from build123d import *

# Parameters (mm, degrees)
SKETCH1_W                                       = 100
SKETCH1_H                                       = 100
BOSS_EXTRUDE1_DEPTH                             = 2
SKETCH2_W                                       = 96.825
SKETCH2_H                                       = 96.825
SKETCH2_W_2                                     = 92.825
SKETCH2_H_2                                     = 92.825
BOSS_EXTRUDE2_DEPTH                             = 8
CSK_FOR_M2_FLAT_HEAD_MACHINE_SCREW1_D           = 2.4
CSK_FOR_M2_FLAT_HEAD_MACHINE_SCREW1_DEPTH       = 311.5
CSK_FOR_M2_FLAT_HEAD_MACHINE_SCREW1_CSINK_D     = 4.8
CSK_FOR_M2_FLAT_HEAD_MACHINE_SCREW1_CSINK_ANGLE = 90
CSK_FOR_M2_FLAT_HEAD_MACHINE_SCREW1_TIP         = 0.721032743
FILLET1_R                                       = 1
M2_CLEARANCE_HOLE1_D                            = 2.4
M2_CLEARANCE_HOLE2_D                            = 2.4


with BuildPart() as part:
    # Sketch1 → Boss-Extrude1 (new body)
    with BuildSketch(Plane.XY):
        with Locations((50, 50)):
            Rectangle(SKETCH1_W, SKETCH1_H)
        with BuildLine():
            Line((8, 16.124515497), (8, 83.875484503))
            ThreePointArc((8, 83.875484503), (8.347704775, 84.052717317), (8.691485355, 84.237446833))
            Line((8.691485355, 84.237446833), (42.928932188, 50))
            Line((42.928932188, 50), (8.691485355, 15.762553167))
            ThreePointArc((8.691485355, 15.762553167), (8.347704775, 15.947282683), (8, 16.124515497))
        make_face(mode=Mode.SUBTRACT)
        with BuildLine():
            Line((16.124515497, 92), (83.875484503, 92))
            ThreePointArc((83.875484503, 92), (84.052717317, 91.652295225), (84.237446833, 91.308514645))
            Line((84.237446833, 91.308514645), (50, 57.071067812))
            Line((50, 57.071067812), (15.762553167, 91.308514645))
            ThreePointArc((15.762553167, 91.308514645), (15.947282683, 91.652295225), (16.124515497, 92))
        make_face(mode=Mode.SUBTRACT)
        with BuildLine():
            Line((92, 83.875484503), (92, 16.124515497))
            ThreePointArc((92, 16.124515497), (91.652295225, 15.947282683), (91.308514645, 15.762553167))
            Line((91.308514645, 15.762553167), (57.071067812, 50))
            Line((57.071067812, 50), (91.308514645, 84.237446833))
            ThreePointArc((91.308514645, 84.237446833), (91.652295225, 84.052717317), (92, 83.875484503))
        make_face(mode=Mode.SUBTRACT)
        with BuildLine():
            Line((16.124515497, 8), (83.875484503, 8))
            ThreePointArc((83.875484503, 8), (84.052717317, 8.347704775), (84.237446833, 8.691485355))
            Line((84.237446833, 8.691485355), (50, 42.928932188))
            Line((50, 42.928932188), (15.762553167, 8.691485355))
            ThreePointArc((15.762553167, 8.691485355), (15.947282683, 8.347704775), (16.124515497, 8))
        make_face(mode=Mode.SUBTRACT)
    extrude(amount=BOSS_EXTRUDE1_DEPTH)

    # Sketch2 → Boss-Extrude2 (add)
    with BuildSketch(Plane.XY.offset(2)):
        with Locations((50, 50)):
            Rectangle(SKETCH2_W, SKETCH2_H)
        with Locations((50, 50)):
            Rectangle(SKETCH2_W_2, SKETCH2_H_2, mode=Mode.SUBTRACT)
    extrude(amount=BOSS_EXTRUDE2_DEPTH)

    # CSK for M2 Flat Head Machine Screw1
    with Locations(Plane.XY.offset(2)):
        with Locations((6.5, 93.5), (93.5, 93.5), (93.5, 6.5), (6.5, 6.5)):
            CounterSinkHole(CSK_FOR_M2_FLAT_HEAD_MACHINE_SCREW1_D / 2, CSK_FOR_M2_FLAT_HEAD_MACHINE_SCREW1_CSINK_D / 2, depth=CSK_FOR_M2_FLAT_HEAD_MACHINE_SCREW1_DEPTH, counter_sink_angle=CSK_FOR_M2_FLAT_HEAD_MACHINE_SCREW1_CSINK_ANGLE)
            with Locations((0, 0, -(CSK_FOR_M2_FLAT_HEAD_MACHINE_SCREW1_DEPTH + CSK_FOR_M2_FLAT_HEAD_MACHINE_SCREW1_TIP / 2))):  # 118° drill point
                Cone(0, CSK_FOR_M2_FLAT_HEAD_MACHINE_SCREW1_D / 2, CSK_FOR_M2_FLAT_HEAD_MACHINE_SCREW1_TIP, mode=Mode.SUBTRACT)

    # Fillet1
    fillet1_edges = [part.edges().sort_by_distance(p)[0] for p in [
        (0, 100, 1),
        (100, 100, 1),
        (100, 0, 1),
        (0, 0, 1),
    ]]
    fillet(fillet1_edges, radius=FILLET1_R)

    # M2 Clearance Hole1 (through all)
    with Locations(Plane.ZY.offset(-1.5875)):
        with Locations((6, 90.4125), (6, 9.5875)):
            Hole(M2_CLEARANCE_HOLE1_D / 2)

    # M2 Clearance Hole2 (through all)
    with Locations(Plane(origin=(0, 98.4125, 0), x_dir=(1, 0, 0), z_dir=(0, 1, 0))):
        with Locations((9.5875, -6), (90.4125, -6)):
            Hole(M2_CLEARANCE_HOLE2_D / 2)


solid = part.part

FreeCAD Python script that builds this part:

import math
import FreeCAD as App
import Part
import Sketcher
from FreeCAD import Vector


def edges_at(feature, points):
    """Names of the edges that pass closest to the given points."""
    edges = feature.Shape.Edges
    near = lambda p: min(range(len(edges)), key=lambda i: edges[i].distToShape(Part.Vertex(*p))[0])
    return sorted({f"Edge{near(p) + 1}" for p in points})


def add_polygon(sketch, points):
    """Adds a closed chain of lines whose ends are joined by coincident constraints."""
    first, n = sketch.GeometryCount, len(points)
    for a, b in zip(points, points[1:] + points[:1]):
        sketch.addGeometry(Part.LineSegment(App.Vector(*a, 0), App.Vector(*b, 0)), False)
    for i in range(n):
        sketch.addConstraint(Sketcher.Constraint("Coincident", first + i, 2, first + (i + 1) % n, 1))

doc = App.newDocument("Part")
params = doc.addObject("Spreadsheet::Sheet", "Params")
for row, (alias, value) in enumerate([
    ("sketch1_width", "100 mm"),
    ("pad1_length", "2 mm"),
    ("pad2_length", "8 mm"),
    ("sketch3_diameter", "2.4 mm"),
    ("hole_diameter", "2.4 mm"),
    ("hole_depth", "311.5 mm"),
    ("hole_csink_diameter", "4.8 mm"),
    ("fillet_radius", "1 mm"),
    ("sketch4_diameter", "2.4 mm"),
    ("hole2_diameter", "2.4 mm"),
    ("sketch5_diameter", "2.4 mm"),
    ("hole3_diameter", "2.4 mm"),
], start=1):
    params.set(f"A{row}", alias)
    params.set(f"B{row}", "=" + value)
    params.setAlias(f"B{row}", alias)

body = doc.addObject("PartDesign::Body", "Body")

# Sketch on XY plane
sketch1 = body.newObject("Sketcher::SketchObject", "Sketch")
sketch1.AttachmentSupport = (doc.getObject("XY_Plane"), [""])
sketch1.MapMode = "FlatFace"
add_polygon(sketch1, [(0, 100), (0, 0), (100, 0), (100, 100)])  # lines 0-3
sketch1.addGeometry(Part.LineSegment(Vector(83.875485, 8, 0), Vector(16.124515, 8, 0)), False)  # 4
sketch1.addGeometry(Part.ArcOfCircle(Part.Circle(Vector(-0.000004, -0.000002, 0), Vector(0, 0, 1), 18.000004), math.radians(26.3878), math.radians(28.872379)), False)  # 5
sketch1.addGeometry(Part.LineSegment(Vector(15.762553, 8.691485, 0), Vector(50, 42.928932, 0)), False)  # 6
sketch1.addGeometry(Part.LineSegment(Vector(50, 42.928932, 0), Vector(84.237447, 8.691485, 0)), False)  # 7
sketch1.addGeometry(Part.ArcOfCircle(Part.Circle(Vector(100.000004, -0.000002, 0), Vector(0, 0, 1), 18.000004), math.radians(151.127621), math.radians(153.6122)), False)  # 8
sketch1.addGeometry(Part.ArcOfCircle(Part.Circle(Vector(-0.000002, -0.000004, 0), Vector(0, 0, 1), 18.000004), math.radians(61.127621), math.radians(63.6122)), False)  # 9
sketch1.addGeometry(Part.LineSegment(Vector(8, 16.124515, 0), Vector(8, 83.875485, 0)), False)  # 10
sketch1.addGeometry(Part.ArcOfCircle(Part.Circle(Vector(-0.000002, 100.000004, 0), Vector(0, 0, 1), 18.000004), math.radians(-63.6122), math.radians(-61.127621)), False)  # 11
sketch1.addGeometry(Part.LineSegment(Vector(8.691485, 84.237447, 0), Vector(42.928932, 50, 0)), False)  # 12
sketch1.addGeometry(Part.LineSegment(Vector(42.928932, 50, 0), Vector(8.691485, 15.762553, 0)), False)  # 13
sketch1.addGeometry(Part.ArcOfCircle(Part.Circle(Vector(100.000002, 100.000004, 0), Vector(0, 0, 1), 18.000004), math.radians(-118.872379), math.radians(-116.3878)), False)  # 14
sketch1.addGeometry(Part.LineSegment(Vector(92, 83.875485, 0), Vector(92, 16.124515, 0)), False)  # 15
sketch1.addGeometry(Part.ArcOfCircle(Part.Circle(Vector(100.000002, -0.000004, 0), Vector(0, 0, 1), 18.000004), math.radians(116.3878), math.radians(118.872379)), False)  # 16
sketch1.addGeometry(Part.LineSegment(Vector(91.308515, 15.762553, 0), Vector(57.071068, 50, 0)), False)  # 17
sketch1.addGeometry(Part.LineSegment(Vector(57.071068, 50, 0), Vector(91.308515, 84.237447, 0)), False)  # 18
sketch1.addGeometry(Part.ArcOfCircle(Part.Circle(Vector(-0.000004, 100.000002, 0), Vector(0, 0, 1), 18.000004), math.radians(-28.872379), math.radians(-26.3878)), False)  # 19
sketch1.addGeometry(Part.LineSegment(Vector(16.124515, 92, 0), Vector(83.875485, 92, 0)), False)  # 20
sketch1.addGeometry(Part.ArcOfCircle(Part.Circle(Vector(100.000004, 100.000002, 0), Vector(0, 0, 1), 18.000004), math.radians(-153.6122), math.radians(-151.127621)), False)  # 21
sketch1.addGeometry(Part.LineSegment(Vector(84.237447, 91.308515, 0), Vector(50, 57.071068, 0)), False)  # 22
sketch1.addGeometry(Part.LineSegment(Vector(50, 57.071068, 0), Vector(15.762553, 91.308515, 0)), False)  # 23
sketch1.addConstraint([
    Sketcher.Constraint("Coincident", 4, 2, 5, 1),
    Sketcher.Constraint("Coincident", 5, 2, 6, 1),
    Sketcher.Constraint("Coincident", 6, 2, 7, 1),
    Sketcher.Constraint("Coincident", 7, 2, 8, 1),
    Sketcher.Constraint("Coincident", 8, 2, 4, 1),
    Sketcher.Constraint("Coincident", 9, 2, 10, 1),
    Sketcher.Constraint("Coincident", 10, 2, 11, 1),
    Sketcher.Constraint("Coincident", 11, 2, 12, 1),
    Sketcher.Constraint("Coincident", 12, 2, 13, 1),
    Sketcher.Constraint("Coincident", 13, 2, 9, 1),
    Sketcher.Constraint("Coincident", 14, 2, 15, 1),
    Sketcher.Constraint("Coincident", 15, 2, 16, 1),
    Sketcher.Constraint("Coincident", 16, 2, 17, 1),
    Sketcher.Constraint("Coincident", 17, 2, 18, 1),
    Sketcher.Constraint("Coincident", 18, 2, 14, 1),
    Sketcher.Constraint("Coincident", 19, 2, 20, 1),
    Sketcher.Constraint("Coincident", 20, 2, 21, 1),
    Sketcher.Constraint("Coincident", 21, 2, 22, 1),
    Sketcher.Constraint("Coincident", 22, 2, 23, 1),
    Sketcher.Constraint("Coincident", 23, 2, 19, 1),
    Sketcher.Constraint("Vertical", 0),
    Sketcher.Constraint("Horizontal", 1),
    Sketcher.Constraint("Vertical", 2),
    Sketcher.Constraint("Horizontal", 3),
    Sketcher.Constraint("Horizontal", 4),
    Sketcher.Constraint("Vertical", 10),
    Sketcher.Constraint("Vertical", 15),
    Sketcher.Constraint("Horizontal", 20),
    Sketcher.Constraint("Coincident", 5, 3, -1, 1),
    Sketcher.Constraint("Coincident", 9, 3, -1, 1),
    Sketcher.Constraint("Coincident", 0, 2, -1, 1),
    Sketcher.Constraint("Coincident", 16, 3, 8, 3),
    Sketcher.Constraint("Coincident", 19, 3, 11, 3),
    Sketcher.Constraint("Coincident", 21, 3, 14, 3),
    Sketcher.Constraint("Coincident", 1, 2, 8, 3),
    Sketcher.Constraint("Coincident", 2, 2, 14, 3),
    Sketcher.Constraint("Coincident", 3, 2, 11, 3),
    Sketcher.Constraint("Equal", 5, 8),
    Sketcher.Constraint("Equal", 8, 9),
    Sketcher.Constraint("Equal", 9, 11),
    Sketcher.Constraint("Equal", 11, 14),
    Sketcher.Constraint("Equal", 14, 16),
    Sketcher.Constraint("Equal", 16, 19),
    Sketcher.Constraint("Equal", 19, 21),
    Sketcher.Constraint("Perpendicular", 6, 7),
    Sketcher.Constraint("Parallel", 7, 12),
    Sketcher.Constraint("Perpendicular", 12, 13),
    Sketcher.Constraint("Perpendicular", 13, 17),
    Sketcher.Constraint("Perpendicular", 17, 18),
    Sketcher.Constraint("Parallel", 18, 22),
    Sketcher.Constraint("Perpendicular", 22, 23),
    Sketcher.Constraint("Horizontal", 5, 2, 7, 2),
    Sketcher.Constraint("Horizontal", 10, 2, 14, 2),
    Sketcher.Constraint("Horizontal", 13, 2, 16, 2),
    Sketcher.Constraint("Horizontal", 12, 2, 17, 2),
    Sketcher.Constraint("Horizontal", 11, 2, 18, 2),
    Sketcher.Constraint("Horizontal", 21, 2, 23, 2),
    Sketcher.Constraint("Vertical", 11, 2, 13, 2),
    Sketcher.Constraint("Vertical", 4, 2, 19, 2),
    Sketcher.Constraint("Vertical", 7, 2, 21, 2),
    Sketcher.Constraint("Equal", 3, 0),
    Sketcher.Constraint("Equal", 20, 10),
    Sketcher.Constraint("Equal", 7, 12),
    Sketcher.Constraint("DistanceX", 1, 1, 1, 2, 100.0),
    Sketcher.Constraint("DistanceY", -1, 1, 4, 2, 8.0),
    Sketcher.Constraint("Radius", 5, 18.000004),
    Sketcher.Constraint("Distance", 6, 48.419062),
])
sketch1.setExpression("Constraints[67]", "Params.sketch1_width")
pad1 = body.newObject("PartDesign::Pad", "Pad")
pad1.Profile = sketch1
pad1.setExpression("Length", "Params.pad1_length")

# Sketch on XY plane
sketch2 = body.newObject("Sketcher::SketchObject", "Sketch001")
sketch2.AttachmentSupport = (doc.getObject("XY_Plane"), [""])
sketch2.MapMode = "FlatFace"
sketch2.AttachmentOffset = App.Placement(Vector(0, 0, 2), App.Rotation())
add_polygon(sketch2, [(1.5875, 98.4125), (1.5875, 1.5875), (98.4125, 1.5875), (98.4125, 98.4125)])  # lines 0-3
add_polygon(sketch2, [(96.4125, 3.5875), (3.5875, 3.5875), (3.5875, 96.4125), (96.4125, 96.4125)])  # lines 4-7
sketch2.addConstraint([
    Sketcher.Constraint("Vertical", 0),
    Sketcher.Constraint("Horizontal", 1),
    Sketcher.Constraint("Vertical", 2),
    Sketcher.Constraint("Horizontal", 3),
    Sketcher.Constraint("Horizontal", 4),
    Sketcher.Constraint("Vertical", 5),
    Sketcher.Constraint("Horizontal", 6),
    Sketcher.Constraint("Vertical", 7),
    Sketcher.Constraint("Equal", 3, 0),
    Sketcher.Constraint("Equal", 6, 5),
    Sketcher.Constraint("DistanceX", 0, 2, 4, 2, 2.0),
    Sketcher.Constraint("DistanceY", 0, 2, 4, 2, 2.0),
    Sketcher.Constraint("DistanceY", 5, 2, 3, 2, 2.0),
    Sketcher.Constraint("DistanceX", 1, 1, 1, 2, 96.825),
    Sketcher.Constraint("DistanceX", -1, 1, 0, 2, 1.5875),
    Sketcher.Constraint("DistanceY", -1, 1, 0, 2, 1.5875),
])
pad2 = body.newObject("PartDesign::Pad", "Pad001")
pad2.Profile = sketch2
pad2.setExpression("Length", "Params.pad2_length")

# Sketch on XY plane
sketch3 = body.newObject("Sketcher::SketchObject", "Sketch002")
sketch3.AttachmentSupport = (doc.getObject("XY_Plane"), [""])
sketch3.MapMode = "FlatFace"
sketch3.AttachmentOffset = App.Placement(Vector(0, 0, 2), App.Rotation())
sketch3.addGeometry([
    Part.Circle(Vector(6.5, 93.5, 0), Vector(0, 0, 1), 1.2),
    Part.Circle(Vector(93.5, 93.5, 0), Vector(0, 0, 1), 1.2),
    Part.Circle(Vector(93.5, 6.5, 0), Vector(0, 0, 1), 1.2),
    Part.Circle(Vector(6.5, 6.5, 0), Vector(0, 0, 1), 1.2),
], False)
sketch3.addConstraint([
    Sketcher.Constraint("Equal", 0, 1),
    Sketcher.Constraint("Equal", 1, 2),
    Sketcher.Constraint("Equal", 2, 3),
    Sketcher.Constraint("Horizontal", 0, 3, 1, 3),
    Sketcher.Constraint("Horizontal", 2, 3, 3, 3),
    Sketcher.Constraint("Vertical", 1, 3, 2, 3),
    Sketcher.Constraint("Vertical", 0, 3, 3, 3),
    Sketcher.Constraint("Diameter", 0, 2.4),
    Sketcher.Constraint("DistanceX", 0, 3, 1, 3, 87.0),
    Sketcher.Constraint("DistanceY", 2, 3, 1, 3, 87.0),
    Sketcher.Constraint("DistanceX", -1, 1, 0, 3, 6.5),
    Sketcher.Constraint("DistanceY", -1, 1, 0, 3, 93.5),
])
sketch3.setExpression("Constraints[7]", "Params.sketch3_diameter")
doc.recompute()
hole = body.newObject("PartDesign::Hole", "Hole")
hole.Profile = sketch3
hole.ThreadType = "None"
hole.setExpression("Diameter", "Params.hole_diameter")
hole.DepthType = "Dimension"
hole.setExpression("Depth", "Params.hole_depth")
hole.DrillPoint = "Angled"
hole.DrillPointAngle = 118
hole.HoleCutType = "Countersink"
hole.setExpression("HoleCutDiameter", "Params.hole_csink_diameter")
hole.HoleCutCountersinkAngle = 90
doc.recompute()

fillet = body.newObject("PartDesign::Fillet", "Fillet")
fillet.Base = (hole, edges_at(hole, [
    (0, 100, 1),
    (100, 100, 1),
    (100, 0, 1),
    (0, 0, 1),
]))
fillet.setExpression("Radius", "Params.fillet_radius")

# Sketch on YZ plane
sketch4 = body.newObject("Sketcher::SketchObject", "Sketch003")
sketch4.AttachmentSupport = (doc.getObject("YZ_Plane"), [""])
sketch4.MapMode = "FlatFace"
sketch4.AttachmentOffset = App.Placement(Vector(0, 0, 1.5875), App.Rotation())
sketch4.addGeometry([
    Part.Circle(Vector(90.4125, 6, 0), Vector(0, 0, 1), 1.2),
    Part.Circle(Vector(9.5875, 6, 0), Vector(0, 0, 1), 1.2),
], False)
sketch4.addConstraint([
    Sketcher.Constraint("Equal", 0, 1),
    Sketcher.Constraint("Horizontal", 0, 3, 1, 3),
    Sketcher.Constraint("Diameter", 0, 2.4),
    Sketcher.Constraint("DistanceY", -1, 1, 0, 3, 6.0),
    Sketcher.Constraint("DistanceX", 1, 3, 0, 3, 80.825),
    Sketcher.Constraint("DistanceX", -1, 1, 0, 3, 90.4125),
])
sketch4.setExpression("Constraints[2]", "Params.sketch4_diameter")
doc.recompute()
hole2 = body.newObject("PartDesign::Hole", "Hole001")
hole2.Profile = sketch4
hole2.ThreadType = "None"
hole2.setExpression("Diameter", "Params.hole2_diameter")
hole2.DepthType = "ThroughAll"
hole2.Reversed = True

# Sketch on XZ plane
sketch5 = body.newObject("Sketcher::SketchObject", "Sketch004")
sketch5.AttachmentSupport = (doc.getObject("XZ_Plane"), [""])
sketch5.MapMode = "FlatFace"
sketch5.AttachmentOffset = App.Placement(Vector(0, 0, -98.4125), App.Rotation())
sketch5.addGeometry([
    Part.Circle(Vector(9.5875, 6, 0), Vector(0, 0, 1), 1.2),
    Part.Circle(Vector(90.4125, 6, 0), Vector(0, 0, 1), 1.2),
], False)
sketch5.addConstraint([
    Sketcher.Constraint("Equal", 0, 1),
    Sketcher.Constraint("Horizontal", 0, 3, 1, 3),
    Sketcher.Constraint("Diameter", 0, 2.4),
    Sketcher.Constraint("DistanceY", -1, 1, 0, 3, 6.0),
    Sketcher.Constraint("DistanceX", 0, 3, 1, 3, 80.825),
    Sketcher.Constraint("DistanceX", -1, 1, 0, 3, 9.5875),
])
sketch5.setExpression("Constraints[2]", "Params.sketch5_diameter")
doc.recompute()
hole3 = body.newObject("PartDesign::Hole", "Hole002")
hole3.Profile = sketch5
hole3.ThreadType = "None"
hole3.setExpression("Diameter", "Params.hole3_diameter")
hole3.DepthType = "ThroughAll"
hole3.Reversed = True

doc.recompute()
